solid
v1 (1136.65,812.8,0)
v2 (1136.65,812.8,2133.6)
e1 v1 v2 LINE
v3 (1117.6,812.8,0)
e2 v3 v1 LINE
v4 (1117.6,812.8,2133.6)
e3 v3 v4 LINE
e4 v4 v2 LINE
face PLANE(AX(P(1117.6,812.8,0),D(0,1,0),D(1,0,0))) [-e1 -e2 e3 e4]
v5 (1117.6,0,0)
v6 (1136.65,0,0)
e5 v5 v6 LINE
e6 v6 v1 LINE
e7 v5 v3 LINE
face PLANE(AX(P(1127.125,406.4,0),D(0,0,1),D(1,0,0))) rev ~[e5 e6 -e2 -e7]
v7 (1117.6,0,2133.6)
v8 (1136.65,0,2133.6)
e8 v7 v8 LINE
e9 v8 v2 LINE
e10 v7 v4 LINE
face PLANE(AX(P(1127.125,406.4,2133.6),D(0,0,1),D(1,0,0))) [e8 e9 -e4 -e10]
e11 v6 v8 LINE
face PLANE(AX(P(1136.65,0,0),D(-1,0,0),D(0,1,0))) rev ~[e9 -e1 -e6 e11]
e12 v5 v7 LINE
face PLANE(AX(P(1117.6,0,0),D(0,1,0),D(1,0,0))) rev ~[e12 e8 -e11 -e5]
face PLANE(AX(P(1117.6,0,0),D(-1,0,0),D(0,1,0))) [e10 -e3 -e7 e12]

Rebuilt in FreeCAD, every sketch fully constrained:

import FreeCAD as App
import Part
import Sketcher

V = App.Vector
Q = App.Units.Quantity

doc = App.newDocument("Part")
params = doc.addObject("Spreadsheet::Sheet", "Params")
for row, (alias, value) in enumerate([
    ("sketch1_height", "32 in"),
    ("sketch1_width", "0.75 in"),
    ("pad1_length", "84 in"),
], start=1):
    params.set(f"A{row}", alias)
    params.set(f"B{row}", "=" + value)
    params.setAlias(f"B{row}", alias)

body = doc.addObject("PartDesign::Body", "Body")

# Sketch on XY plane
sketch1 = body.newObject("Sketcher::SketchObject", "Sketch")
sketch1.AttachmentSupport = (doc.getObject("XY_Plane"), [""])
sketch1.MapMode = "FlatFace"
sketch1.addGeometry([
    Part.LineSegment(V(1118, 813, 0), V(1118, 0, 0)),
    Part.LineSegment(V(1118, 0, 0), V(1137, 0, 0)),
    Part.LineSegment(V(1137, 0, 0), V(1137, 813, 0)),
    Part.LineSegment(V(1137, 813, 0), V(1118, 813, 0)),
], False)
sketch1.addConstraint([
    Sketcher.Constraint("Coincident", 0, 2, 1, 1),
    Sketcher.Constraint("Coincident", 1, 2, 2, 1),
    Sketcher.Constraint("Coincident", 2, 2, 3, 1),
    Sketcher.Constraint("Coincident", 3, 2, 0, 1),
    Sketcher.Constraint("Vertical", 0),
    Sketcher.Constraint("Horizontal", 1),
    Sketcher.Constraint("Vertical", 2),
    Sketcher.Constraint("Horizontal", 3),
    Sketcher.Constraint("PointOnObject", 0, 2, -1),
    Sketcher.Constraint("DistanceY", 0, 2, 0, 1, Q("32 in")),
    Sketcher.Constraint("DistanceX", -1, 1, 0, 2, Q("44 in")),
    Sketcher.Constraint("DistanceX", 1, 1, 1, 2, Q("0.75 in")),
])
sketch1.setExpression("Constraints[9]", "Params.sketch1_height")
sketch1.setExpression("Constraints[11]", "Params.sketch1_width")
pad1 = body.newObject("PartDesign::Pad", "Pad")
pad1.Profile = sketch1
pad1.setExpression("Length", "Params.pad1_length")

doc.recompute()
